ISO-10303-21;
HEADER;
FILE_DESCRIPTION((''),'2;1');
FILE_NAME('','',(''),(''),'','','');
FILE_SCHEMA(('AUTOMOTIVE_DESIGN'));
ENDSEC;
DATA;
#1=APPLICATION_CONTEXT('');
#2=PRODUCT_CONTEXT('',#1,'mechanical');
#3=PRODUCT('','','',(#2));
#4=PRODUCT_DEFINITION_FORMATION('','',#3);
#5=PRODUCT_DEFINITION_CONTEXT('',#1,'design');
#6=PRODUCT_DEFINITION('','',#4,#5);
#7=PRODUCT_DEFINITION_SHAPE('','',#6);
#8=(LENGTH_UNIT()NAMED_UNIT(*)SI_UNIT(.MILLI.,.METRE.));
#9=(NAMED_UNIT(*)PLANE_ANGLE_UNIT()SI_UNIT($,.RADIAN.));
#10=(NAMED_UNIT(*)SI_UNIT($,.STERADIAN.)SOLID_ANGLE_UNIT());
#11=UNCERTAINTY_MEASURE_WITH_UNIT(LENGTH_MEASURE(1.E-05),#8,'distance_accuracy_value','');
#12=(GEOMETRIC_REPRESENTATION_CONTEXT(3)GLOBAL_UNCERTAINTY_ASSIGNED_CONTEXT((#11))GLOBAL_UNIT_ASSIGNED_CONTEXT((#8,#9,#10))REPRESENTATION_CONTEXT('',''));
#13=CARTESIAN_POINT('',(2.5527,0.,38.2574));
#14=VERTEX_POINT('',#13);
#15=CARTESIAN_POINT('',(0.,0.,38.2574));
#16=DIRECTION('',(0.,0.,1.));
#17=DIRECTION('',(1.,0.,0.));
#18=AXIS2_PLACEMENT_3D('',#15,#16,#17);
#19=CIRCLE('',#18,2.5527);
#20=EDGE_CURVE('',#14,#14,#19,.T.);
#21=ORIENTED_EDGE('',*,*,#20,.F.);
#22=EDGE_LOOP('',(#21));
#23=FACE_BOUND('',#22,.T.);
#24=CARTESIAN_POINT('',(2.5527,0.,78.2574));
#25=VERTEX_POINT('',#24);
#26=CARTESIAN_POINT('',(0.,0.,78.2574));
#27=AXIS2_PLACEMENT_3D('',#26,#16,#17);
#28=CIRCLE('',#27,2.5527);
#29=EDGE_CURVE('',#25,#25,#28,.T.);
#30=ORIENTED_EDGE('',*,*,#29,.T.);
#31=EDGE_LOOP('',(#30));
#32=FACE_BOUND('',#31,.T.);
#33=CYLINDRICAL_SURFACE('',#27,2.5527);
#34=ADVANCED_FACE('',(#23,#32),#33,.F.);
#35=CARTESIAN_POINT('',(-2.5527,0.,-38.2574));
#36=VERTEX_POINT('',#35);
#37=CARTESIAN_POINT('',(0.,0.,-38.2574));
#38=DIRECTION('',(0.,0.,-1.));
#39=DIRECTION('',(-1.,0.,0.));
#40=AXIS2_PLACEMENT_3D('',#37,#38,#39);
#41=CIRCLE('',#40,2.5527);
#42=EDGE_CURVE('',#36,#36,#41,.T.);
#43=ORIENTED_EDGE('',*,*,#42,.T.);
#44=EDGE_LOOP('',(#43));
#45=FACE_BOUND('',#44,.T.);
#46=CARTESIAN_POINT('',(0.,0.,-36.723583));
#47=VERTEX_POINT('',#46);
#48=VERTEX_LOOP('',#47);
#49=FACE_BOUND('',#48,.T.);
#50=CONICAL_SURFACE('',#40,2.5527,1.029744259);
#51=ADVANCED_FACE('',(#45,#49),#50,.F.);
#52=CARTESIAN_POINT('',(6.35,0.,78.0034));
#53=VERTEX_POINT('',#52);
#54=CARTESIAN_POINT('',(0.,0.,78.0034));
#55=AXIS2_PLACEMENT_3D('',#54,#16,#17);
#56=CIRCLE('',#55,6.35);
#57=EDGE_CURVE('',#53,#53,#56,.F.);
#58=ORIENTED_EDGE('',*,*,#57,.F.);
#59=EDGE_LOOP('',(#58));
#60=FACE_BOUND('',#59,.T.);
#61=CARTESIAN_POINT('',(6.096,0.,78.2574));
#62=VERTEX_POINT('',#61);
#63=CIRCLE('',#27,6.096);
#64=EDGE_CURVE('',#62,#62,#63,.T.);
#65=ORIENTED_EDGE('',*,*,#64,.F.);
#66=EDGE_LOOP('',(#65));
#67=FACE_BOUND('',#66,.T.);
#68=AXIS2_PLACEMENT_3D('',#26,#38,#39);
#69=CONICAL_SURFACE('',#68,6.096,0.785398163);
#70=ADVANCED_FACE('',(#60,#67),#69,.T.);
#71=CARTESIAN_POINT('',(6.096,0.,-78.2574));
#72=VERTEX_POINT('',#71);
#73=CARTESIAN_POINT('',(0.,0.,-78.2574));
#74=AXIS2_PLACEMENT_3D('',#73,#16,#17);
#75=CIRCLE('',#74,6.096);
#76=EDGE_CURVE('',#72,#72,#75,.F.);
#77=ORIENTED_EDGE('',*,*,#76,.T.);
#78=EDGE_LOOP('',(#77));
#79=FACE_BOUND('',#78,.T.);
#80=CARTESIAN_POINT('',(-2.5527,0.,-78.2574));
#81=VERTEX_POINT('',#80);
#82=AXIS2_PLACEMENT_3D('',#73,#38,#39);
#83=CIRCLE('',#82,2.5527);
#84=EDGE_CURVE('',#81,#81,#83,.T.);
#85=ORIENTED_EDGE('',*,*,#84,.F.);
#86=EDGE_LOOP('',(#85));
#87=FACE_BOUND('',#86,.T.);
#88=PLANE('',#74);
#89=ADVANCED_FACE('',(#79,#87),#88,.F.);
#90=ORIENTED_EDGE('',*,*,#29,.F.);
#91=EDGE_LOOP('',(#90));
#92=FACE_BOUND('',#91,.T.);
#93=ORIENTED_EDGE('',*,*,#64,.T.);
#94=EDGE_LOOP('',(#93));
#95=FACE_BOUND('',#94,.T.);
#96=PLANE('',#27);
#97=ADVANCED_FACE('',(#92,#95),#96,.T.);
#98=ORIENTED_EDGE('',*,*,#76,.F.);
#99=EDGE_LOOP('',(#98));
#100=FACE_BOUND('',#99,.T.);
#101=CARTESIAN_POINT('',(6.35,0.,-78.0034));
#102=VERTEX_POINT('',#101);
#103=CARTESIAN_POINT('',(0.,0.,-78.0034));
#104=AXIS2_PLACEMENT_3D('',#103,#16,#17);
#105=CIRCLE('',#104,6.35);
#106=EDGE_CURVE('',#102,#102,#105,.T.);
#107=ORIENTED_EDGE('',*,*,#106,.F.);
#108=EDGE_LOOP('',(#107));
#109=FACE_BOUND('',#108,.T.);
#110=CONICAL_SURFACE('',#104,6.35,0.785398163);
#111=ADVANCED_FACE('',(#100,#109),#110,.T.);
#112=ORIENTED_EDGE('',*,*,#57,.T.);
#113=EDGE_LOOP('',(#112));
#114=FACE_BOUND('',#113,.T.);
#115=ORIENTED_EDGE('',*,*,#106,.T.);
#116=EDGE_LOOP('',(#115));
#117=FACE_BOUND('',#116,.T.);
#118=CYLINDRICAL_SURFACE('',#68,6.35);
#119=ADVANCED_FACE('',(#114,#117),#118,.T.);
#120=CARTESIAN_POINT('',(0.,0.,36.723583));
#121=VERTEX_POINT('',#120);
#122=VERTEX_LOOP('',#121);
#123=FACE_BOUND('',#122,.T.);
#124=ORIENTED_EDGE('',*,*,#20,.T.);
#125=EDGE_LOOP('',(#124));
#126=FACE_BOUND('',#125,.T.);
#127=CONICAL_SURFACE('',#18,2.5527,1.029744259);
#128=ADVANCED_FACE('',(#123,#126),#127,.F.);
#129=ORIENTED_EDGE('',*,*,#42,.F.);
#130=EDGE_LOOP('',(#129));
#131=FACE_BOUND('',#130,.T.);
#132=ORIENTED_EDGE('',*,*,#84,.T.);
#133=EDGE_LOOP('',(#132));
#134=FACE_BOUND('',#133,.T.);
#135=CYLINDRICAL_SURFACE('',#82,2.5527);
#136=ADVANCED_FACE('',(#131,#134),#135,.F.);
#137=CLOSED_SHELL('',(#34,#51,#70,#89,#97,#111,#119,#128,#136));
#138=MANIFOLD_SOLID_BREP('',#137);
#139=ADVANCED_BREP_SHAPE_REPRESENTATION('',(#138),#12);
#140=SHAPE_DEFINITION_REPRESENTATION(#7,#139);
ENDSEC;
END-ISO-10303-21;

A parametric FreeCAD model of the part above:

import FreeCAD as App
import Part
import Sketcher
Q = App.Units.Quantity


def edges_at(feature, points):
    """Names of the edges that pass closest to the given points."""
    edges = feature.Shape.Edges
    near = lambda p: min(range(len(edges)), key=lambda i: edges[i].distToShape(Part.Vertex(*p))[0])
    return sorted({f"Edge{near(p) + 1}" for p in points})

doc = App.newDocument("Part")
body = doc.addObject("PartDesign::Body", "Body")

sketch1 = body.newObject("Sketcher::SketchObject", "Sketch")
sketch1.AttachmentSupport = (doc.getObject("XY_Plane"), [""])
sketch1.MapMode = "FlatFace"
sketch1.addGeometry(Part.Circle(App.Vector(0, 0, 0), App.Vector(0, 0, 1), 6), False)
sketch1.addConstraint([
    Sketcher.Constraint("Coincident", 0, 3, -1, 1),
    Sketcher.Constraint("Diameter", 0, Q("0.5 in")),
])
pad1 = body.newObject("PartDesign::Pad", "Pad")
pad1.Profile = sketch1
pad1.Length = Q("6.162 in")
pad1.Midplane = True

sketch2 = body.newObject("Sketcher::SketchObject", "Sketch001")
sketch2.AttachmentSupport = (doc.getObject("XY_Plane"), [""])
sketch2.MapMode = "FlatFace"
sketch2.AttachmentOffset = App.Placement(App.Vector(0, 0, 3.081 * 25.4), App.Rotation())
sketch2.addGeometry(Part.Circle(App.Vector(0, 0, 0), App.Vector(0, 0, 1), 2.6), False)
sketch2.addConstraint([
    Sketcher.Constraint("Coincident", 0, 3, -1, 1),
    Sketcher.Constraint("Diameter", 0, Q("0.201 in")),
])
doc.recompute()
hole = body.newObject("PartDesign::Hole", "Hole")
hole.Profile = sketch2
hole.ThreadType = "None"
hole.Diameter = Q("0.201 in")
hole.DepthType = "Dimension"
hole.Depth = 40
hole.DrillPoint = "Angled"
hole.DrillPointAngle = 118

sketch3 = body.newObject("Sketcher::SketchObject", "Sketch002")
sketch3.AttachmentSupport = (doc.getObject("XY_Plane"), [""])
sketch3.MapMode = "FlatFace"
sketch3.AttachmentOffset = App.Placement(App.Vector(0, 0, -3.081 * 25.4), App.Rotation())
sketch3.addGeometry(Part.Circle(App.Vector(0, 0, 0), App.Vector(0, 0, 1), 2.6), False)
sketch3.addConstraint([
    Sketcher.Constraint("Coincident", 0, 3, -1, 1),
    Sketcher.Constraint("Diameter", 0, Q("0.201 in")),
])
doc.recompute()
hole2 = body.newObject("PartDesign::Hole", "Hole001")
hole2.Profile = sketch3
hole2.ThreadType = "None"
hole2.Diameter = Q("0.201 in")
hole2.DepthType = "Dimension"
hole2.Depth = 40
hole2.DrillPoint = "Angled"
hole2.DrillPointAngle = 118
hole2.Reversed = True
doc.recompute()

chamfer = body.newObject("PartDesign::Chamfer", "Chamfer")
chamfer.Base = (hole2, edges_at(hole2, [(-6.35, 0, -78.257), (-6.35, 0, 78.257)]))
chamfer.Size = Q("0.01 in")

doc.recompute()
